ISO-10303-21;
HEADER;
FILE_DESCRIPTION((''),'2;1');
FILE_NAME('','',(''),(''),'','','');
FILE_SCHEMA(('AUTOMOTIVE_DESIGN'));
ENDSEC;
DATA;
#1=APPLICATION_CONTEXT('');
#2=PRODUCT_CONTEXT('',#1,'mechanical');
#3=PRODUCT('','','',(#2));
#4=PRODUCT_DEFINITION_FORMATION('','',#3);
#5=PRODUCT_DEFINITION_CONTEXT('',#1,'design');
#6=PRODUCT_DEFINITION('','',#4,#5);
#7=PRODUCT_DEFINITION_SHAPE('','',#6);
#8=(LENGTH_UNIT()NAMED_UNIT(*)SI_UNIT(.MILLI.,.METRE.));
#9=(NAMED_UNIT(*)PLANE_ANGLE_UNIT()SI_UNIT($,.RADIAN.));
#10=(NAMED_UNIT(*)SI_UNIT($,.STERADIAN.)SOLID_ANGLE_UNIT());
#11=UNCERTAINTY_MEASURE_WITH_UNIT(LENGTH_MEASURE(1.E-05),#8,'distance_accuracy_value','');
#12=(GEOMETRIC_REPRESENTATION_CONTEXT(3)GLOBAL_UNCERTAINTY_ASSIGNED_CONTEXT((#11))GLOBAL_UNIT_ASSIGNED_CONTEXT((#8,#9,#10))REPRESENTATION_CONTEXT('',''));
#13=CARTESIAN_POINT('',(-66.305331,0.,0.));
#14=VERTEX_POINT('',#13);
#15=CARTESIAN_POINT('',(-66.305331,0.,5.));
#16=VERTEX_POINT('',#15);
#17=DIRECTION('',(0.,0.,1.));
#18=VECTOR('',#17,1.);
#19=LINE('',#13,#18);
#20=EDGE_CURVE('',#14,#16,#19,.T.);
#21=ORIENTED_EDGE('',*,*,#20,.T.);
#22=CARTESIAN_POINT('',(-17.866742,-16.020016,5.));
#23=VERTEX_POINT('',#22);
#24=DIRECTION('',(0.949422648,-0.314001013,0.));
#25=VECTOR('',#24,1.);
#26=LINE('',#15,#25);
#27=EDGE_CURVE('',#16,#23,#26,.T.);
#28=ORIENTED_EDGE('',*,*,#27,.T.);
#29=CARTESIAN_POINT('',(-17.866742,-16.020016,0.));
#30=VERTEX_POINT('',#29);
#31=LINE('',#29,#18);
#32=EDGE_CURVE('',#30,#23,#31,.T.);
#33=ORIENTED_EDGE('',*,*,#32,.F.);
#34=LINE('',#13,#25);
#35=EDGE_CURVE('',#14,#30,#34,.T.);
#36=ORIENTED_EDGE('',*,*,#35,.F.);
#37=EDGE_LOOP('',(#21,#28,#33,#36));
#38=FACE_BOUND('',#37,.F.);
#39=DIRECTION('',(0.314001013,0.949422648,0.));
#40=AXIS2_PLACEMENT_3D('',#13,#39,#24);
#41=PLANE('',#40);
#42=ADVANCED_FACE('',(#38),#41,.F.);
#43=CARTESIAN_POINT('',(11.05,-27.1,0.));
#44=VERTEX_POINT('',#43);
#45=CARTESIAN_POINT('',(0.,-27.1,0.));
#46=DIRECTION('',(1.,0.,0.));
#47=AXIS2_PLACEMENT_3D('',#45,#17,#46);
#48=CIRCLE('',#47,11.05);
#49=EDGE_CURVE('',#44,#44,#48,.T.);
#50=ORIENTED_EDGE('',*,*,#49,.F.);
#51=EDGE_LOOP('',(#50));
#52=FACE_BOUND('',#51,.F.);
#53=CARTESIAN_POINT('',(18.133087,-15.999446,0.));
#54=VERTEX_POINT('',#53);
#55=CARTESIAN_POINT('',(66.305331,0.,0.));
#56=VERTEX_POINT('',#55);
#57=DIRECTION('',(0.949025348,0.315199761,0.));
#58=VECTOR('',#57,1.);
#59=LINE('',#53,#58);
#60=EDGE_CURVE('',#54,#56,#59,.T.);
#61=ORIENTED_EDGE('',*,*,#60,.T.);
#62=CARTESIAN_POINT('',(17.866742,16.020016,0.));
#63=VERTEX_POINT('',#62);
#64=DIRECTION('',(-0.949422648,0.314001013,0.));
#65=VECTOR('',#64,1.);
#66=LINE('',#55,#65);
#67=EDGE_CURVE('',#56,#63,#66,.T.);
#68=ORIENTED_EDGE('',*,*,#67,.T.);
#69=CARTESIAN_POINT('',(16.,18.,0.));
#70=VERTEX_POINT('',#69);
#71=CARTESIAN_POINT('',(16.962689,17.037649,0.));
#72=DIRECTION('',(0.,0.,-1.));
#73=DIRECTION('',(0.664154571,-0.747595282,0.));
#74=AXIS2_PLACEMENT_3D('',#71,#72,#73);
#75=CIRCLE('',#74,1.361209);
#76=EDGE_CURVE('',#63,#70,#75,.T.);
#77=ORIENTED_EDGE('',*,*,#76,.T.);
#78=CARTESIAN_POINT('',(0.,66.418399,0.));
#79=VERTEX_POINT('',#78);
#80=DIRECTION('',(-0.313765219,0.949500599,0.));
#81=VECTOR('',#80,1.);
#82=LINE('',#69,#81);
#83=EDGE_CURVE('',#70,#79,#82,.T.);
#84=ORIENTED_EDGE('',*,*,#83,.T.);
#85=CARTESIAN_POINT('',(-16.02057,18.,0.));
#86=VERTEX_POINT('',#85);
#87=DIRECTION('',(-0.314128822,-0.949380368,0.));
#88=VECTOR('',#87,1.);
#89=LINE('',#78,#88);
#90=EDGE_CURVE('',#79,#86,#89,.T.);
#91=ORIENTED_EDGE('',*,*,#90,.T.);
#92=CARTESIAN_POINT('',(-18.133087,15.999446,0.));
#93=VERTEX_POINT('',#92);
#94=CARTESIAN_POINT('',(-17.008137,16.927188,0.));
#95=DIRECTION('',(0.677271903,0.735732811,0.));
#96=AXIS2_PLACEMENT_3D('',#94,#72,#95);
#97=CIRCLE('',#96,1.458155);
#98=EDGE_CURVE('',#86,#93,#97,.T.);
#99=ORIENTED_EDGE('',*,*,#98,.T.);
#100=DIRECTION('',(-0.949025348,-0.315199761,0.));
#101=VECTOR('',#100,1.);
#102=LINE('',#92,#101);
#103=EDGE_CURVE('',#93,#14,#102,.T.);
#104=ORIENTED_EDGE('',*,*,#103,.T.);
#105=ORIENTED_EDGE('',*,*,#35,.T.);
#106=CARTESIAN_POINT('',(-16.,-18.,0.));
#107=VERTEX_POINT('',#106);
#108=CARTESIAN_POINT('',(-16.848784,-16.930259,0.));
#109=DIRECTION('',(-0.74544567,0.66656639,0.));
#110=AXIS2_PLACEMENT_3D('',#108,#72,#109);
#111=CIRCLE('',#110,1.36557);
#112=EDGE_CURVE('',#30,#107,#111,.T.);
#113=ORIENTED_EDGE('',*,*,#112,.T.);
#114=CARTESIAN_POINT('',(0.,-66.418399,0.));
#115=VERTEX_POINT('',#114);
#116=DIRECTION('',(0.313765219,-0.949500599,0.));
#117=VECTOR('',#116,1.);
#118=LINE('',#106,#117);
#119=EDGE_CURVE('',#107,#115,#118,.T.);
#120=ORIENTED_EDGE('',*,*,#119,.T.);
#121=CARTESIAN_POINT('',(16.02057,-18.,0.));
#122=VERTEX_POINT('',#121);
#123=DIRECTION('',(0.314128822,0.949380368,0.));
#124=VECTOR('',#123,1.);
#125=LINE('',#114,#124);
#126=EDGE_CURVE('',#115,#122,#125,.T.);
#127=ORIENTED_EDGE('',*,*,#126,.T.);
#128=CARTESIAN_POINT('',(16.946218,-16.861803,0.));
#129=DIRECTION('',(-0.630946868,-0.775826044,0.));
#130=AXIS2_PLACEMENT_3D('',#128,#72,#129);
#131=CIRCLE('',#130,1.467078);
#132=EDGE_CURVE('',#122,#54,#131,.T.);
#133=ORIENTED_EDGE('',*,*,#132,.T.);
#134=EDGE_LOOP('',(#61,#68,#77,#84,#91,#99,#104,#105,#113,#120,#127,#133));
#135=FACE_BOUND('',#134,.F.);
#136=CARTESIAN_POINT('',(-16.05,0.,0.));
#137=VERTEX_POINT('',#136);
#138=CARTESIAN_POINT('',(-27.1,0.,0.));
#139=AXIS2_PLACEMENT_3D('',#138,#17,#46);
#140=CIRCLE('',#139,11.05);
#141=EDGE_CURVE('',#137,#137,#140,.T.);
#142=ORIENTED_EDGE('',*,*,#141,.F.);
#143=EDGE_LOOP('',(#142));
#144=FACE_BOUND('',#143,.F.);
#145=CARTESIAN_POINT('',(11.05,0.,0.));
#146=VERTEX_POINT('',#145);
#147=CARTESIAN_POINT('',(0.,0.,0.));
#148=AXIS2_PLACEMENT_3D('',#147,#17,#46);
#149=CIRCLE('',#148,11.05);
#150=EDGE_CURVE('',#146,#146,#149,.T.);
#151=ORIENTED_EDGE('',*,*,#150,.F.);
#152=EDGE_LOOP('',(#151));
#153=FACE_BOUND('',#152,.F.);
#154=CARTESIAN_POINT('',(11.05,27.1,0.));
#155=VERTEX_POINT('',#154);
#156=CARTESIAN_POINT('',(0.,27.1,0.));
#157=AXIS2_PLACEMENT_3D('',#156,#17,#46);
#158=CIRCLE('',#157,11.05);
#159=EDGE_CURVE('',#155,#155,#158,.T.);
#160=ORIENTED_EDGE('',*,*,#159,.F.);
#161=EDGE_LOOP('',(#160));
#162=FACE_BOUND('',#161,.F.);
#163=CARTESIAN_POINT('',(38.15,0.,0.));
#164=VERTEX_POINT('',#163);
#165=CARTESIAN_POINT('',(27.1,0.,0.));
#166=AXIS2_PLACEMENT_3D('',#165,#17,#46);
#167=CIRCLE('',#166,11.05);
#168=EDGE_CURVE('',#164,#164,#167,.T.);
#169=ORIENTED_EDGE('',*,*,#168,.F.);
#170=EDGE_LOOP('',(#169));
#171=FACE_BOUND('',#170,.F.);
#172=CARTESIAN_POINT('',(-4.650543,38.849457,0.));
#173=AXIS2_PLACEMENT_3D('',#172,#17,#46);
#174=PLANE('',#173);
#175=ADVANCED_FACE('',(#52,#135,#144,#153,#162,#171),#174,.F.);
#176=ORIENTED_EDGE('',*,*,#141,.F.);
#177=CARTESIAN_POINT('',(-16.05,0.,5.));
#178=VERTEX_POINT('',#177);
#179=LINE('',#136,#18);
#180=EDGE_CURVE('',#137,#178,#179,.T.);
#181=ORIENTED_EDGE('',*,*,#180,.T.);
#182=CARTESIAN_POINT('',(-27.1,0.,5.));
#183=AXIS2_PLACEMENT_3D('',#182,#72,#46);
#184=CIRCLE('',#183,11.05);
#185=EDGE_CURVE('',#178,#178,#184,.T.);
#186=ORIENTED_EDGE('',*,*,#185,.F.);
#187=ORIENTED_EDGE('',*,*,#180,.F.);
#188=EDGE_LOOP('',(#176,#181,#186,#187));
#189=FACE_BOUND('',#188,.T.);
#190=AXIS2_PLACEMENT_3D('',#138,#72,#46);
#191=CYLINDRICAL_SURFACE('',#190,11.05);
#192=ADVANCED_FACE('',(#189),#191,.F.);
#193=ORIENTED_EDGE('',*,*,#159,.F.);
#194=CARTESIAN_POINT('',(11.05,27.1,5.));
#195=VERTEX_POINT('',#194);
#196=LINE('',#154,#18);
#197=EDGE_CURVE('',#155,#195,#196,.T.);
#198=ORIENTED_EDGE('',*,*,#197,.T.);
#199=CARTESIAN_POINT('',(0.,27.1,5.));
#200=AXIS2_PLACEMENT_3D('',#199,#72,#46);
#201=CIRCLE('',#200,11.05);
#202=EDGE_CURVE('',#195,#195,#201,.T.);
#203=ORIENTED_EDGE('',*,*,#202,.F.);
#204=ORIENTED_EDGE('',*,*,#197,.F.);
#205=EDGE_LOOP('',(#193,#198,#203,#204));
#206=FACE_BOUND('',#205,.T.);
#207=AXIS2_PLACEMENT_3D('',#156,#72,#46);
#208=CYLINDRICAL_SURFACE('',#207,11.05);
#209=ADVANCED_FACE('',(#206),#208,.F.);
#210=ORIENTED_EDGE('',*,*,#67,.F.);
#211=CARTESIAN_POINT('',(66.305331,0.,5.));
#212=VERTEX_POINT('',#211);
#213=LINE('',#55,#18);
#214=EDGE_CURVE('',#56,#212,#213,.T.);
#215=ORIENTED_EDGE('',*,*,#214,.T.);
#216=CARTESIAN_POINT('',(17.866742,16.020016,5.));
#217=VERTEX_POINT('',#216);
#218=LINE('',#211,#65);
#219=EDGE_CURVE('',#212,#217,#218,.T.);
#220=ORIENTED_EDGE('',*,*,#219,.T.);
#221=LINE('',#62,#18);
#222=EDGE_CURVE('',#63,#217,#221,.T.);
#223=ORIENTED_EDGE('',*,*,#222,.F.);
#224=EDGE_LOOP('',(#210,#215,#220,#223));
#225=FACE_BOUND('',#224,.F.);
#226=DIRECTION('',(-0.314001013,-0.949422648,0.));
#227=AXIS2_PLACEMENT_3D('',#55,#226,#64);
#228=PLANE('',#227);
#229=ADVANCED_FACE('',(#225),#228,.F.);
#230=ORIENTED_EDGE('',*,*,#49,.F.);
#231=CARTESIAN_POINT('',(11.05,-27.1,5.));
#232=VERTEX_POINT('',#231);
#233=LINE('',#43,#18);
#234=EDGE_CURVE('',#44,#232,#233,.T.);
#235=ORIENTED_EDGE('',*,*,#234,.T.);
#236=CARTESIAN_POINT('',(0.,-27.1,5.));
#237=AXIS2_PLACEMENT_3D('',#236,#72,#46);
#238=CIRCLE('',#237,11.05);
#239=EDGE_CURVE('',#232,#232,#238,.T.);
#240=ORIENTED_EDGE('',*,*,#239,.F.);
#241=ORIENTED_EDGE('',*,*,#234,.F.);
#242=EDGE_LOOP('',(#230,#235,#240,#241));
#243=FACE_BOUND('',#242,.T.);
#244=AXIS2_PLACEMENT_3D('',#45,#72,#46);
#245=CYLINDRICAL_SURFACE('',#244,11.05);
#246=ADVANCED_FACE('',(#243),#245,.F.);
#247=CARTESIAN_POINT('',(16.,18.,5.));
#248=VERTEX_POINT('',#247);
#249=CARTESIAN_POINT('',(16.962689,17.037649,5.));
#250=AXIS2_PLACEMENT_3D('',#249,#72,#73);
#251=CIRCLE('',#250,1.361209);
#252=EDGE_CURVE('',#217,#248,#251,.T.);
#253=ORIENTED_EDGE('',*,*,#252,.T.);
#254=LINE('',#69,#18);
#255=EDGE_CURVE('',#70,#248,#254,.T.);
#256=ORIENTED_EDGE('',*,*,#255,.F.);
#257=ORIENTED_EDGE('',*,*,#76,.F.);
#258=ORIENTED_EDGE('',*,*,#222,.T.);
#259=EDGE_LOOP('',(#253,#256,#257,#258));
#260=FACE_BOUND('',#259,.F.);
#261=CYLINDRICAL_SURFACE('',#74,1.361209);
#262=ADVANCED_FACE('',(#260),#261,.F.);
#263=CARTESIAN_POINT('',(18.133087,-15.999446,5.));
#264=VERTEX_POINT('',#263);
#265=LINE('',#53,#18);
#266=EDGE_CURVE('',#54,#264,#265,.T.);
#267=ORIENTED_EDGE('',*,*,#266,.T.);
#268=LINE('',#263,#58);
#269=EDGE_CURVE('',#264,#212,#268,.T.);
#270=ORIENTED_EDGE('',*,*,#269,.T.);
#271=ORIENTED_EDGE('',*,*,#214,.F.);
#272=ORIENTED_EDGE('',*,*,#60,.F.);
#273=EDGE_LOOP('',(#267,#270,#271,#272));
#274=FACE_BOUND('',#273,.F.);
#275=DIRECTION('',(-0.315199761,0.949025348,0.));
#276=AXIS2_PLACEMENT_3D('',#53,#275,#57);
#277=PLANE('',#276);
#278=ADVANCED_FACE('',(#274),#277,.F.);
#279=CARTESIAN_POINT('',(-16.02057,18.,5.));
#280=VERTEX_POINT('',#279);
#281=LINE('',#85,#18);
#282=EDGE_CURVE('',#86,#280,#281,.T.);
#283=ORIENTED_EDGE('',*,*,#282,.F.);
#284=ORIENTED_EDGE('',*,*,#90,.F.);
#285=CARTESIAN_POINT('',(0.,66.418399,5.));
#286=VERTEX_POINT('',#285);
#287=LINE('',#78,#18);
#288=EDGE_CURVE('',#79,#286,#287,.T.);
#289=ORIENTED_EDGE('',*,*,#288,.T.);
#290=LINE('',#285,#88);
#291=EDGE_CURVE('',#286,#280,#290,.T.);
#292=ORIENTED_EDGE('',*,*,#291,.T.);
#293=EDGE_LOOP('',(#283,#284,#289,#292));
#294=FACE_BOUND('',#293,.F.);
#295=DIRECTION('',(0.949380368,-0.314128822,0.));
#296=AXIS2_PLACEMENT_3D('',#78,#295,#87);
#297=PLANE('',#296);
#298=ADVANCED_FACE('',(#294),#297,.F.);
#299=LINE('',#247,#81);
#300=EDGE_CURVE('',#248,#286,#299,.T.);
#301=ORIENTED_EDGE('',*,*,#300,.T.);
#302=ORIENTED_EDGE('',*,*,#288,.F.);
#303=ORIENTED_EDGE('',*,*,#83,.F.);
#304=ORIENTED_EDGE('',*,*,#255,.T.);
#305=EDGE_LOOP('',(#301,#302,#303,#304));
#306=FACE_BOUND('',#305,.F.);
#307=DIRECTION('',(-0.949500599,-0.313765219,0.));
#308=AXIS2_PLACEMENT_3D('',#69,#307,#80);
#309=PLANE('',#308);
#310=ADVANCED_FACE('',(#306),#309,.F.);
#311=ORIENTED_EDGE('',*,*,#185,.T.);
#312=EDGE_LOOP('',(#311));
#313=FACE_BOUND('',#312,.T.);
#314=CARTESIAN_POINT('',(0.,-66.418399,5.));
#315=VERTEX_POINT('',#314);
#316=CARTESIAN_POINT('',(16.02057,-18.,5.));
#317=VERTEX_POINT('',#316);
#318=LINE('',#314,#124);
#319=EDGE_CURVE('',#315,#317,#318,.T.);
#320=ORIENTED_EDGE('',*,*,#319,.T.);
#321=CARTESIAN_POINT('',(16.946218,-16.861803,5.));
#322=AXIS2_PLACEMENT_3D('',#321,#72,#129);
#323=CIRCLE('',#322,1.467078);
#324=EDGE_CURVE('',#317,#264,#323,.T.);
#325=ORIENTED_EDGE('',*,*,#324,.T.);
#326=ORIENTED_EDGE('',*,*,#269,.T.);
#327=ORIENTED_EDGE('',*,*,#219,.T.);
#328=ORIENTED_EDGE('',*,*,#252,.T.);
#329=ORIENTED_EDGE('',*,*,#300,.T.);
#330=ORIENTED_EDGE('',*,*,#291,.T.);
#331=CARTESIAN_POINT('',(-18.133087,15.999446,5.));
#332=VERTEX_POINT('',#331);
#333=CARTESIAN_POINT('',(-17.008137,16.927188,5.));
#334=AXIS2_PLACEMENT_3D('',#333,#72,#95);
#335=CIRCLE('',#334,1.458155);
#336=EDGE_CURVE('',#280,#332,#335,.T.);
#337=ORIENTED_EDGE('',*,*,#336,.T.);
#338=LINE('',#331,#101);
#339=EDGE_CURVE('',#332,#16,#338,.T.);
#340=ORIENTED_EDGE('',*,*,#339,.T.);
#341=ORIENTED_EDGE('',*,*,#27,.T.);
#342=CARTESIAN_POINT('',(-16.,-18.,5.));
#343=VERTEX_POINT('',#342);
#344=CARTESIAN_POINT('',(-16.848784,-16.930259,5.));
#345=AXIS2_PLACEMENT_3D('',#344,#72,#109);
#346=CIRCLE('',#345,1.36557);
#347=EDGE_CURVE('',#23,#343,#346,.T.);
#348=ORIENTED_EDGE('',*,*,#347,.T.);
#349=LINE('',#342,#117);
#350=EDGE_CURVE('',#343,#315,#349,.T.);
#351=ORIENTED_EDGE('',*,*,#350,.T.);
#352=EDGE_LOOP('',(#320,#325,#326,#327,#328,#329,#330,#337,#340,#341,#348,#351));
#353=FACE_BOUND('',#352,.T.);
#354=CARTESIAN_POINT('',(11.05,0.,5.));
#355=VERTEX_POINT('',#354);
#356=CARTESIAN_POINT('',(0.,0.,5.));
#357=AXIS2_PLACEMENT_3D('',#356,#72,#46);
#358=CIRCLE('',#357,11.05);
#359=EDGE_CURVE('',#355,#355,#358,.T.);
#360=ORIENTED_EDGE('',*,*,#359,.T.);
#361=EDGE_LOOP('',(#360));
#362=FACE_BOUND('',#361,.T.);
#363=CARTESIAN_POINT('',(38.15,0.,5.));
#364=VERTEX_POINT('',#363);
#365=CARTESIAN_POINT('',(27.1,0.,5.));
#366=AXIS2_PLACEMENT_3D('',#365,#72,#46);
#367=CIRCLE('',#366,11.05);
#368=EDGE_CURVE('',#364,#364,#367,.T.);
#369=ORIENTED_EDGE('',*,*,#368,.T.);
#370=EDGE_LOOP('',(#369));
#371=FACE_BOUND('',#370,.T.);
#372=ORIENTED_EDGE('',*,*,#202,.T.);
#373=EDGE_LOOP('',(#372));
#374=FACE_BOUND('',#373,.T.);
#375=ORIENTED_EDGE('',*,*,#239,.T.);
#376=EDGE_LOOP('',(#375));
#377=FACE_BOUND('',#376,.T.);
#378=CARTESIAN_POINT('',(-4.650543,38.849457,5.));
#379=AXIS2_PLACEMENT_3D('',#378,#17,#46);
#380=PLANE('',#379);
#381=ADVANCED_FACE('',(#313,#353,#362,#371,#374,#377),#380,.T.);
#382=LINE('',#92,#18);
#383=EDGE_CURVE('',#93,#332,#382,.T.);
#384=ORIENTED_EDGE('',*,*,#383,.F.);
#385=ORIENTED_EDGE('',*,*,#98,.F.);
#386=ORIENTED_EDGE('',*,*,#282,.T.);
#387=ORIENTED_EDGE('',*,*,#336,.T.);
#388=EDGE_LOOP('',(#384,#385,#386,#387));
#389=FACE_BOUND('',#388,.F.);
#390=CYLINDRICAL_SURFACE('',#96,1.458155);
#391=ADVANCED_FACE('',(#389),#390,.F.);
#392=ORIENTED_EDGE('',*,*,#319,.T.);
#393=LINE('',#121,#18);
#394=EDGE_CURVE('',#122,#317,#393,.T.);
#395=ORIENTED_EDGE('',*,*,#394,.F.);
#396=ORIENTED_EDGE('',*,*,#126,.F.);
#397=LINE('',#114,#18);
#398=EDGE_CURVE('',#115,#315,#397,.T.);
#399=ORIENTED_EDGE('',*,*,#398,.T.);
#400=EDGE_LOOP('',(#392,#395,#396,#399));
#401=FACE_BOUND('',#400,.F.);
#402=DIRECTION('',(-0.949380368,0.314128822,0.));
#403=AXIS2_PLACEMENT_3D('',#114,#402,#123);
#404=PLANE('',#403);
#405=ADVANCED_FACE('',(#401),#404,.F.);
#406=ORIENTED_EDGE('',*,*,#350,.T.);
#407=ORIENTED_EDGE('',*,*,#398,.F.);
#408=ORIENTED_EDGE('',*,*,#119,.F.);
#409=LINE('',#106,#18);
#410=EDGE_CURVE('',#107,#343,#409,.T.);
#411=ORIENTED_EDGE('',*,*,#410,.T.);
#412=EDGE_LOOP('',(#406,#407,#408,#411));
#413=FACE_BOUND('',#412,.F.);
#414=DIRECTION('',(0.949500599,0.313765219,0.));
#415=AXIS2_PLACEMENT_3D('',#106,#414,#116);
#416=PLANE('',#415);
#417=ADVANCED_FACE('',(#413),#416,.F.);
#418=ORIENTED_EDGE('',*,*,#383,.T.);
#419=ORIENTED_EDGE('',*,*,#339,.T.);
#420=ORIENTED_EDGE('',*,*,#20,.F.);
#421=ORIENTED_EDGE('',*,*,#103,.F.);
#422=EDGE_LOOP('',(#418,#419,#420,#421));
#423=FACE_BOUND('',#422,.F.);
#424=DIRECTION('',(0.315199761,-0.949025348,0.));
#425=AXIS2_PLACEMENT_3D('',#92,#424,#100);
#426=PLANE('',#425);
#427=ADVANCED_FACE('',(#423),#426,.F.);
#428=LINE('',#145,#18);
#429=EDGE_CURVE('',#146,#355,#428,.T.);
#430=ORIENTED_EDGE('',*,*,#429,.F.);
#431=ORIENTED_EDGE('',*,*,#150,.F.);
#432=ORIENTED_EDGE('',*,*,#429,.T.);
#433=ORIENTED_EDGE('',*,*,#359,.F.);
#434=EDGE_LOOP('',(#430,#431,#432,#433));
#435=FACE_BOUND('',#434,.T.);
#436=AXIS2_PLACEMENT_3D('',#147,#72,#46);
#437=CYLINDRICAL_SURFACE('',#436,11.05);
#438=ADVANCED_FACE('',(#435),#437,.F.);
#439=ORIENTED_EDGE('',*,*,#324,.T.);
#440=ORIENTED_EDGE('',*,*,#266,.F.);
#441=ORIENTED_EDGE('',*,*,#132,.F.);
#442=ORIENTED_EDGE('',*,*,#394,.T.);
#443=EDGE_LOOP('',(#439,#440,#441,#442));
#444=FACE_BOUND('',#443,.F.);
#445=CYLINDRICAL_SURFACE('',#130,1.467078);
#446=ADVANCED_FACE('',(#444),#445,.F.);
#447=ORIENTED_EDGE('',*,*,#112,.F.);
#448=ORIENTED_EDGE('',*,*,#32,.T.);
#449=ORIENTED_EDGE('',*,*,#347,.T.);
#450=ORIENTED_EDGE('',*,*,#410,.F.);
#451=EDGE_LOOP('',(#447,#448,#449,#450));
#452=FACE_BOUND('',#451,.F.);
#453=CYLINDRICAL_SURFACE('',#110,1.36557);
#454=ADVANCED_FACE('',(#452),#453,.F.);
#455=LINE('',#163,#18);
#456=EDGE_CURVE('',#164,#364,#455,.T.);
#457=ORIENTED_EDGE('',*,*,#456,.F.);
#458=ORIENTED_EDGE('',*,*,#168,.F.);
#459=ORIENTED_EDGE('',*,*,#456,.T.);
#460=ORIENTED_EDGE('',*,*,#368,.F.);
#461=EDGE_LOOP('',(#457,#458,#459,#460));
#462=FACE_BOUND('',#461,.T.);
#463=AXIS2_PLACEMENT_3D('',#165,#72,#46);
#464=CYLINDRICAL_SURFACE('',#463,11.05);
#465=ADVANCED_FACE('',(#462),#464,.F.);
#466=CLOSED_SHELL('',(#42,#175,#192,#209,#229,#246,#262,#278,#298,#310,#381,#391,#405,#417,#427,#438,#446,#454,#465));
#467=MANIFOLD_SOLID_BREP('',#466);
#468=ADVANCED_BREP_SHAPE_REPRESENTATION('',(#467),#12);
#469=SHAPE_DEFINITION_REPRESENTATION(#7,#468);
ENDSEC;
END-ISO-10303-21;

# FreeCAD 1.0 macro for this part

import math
import FreeCAD as App
import Part
import Sketcher

V = App.Vector
Q = App.Units.Quantity

doc = App.newDocument("Part")
body = doc.addObject("PartDesign::Body", "Body")

sketch1 = body.newObject("Sketcher::SketchObject", "Sketch")
sketch1.AttachmentSupport = (doc.getObject("XY_Plane"), [""])
sketch1.MapMode = "FlatFace"
sketch1.addGeometry([
    Part.LineSegment(V(16, 18, 0), V(0, 66.418399, 0)),
    Part.LineSegment(V(0, 66.418399, 0), V(-16.02057, 18, 0)),
    Part.ArcOfCircle(Part.Circle(V(-17.008137, 16.927188, 0), V(0, 0, 1), 1.458155), math.radians(-140.487731), math.radians(47.369174)),
    Part.LineSegment(V(-18.133087, 15.999446, 0), V(-66.305331, 0, 0)),
    Part.LineSegment(V(-66.305331, 0, 0), V(-17.866742, -16.020016, 0)),
    Part.ArcOfCircle(Part.Circle(V(-16.848784, -16.930259, 0), V(0, 0, 1), 1.36557), math.radians(-51.569827), math.radians(138.197393)),
    Part.LineSegment(V(-16, -18, 0), V(0, -66.418399, 0)),
    Part.LineSegment(V(0, -66.418399, 0), V(16.02057, -18, 0)),
    Part.ArcOfCircle(Part.Circle(V(16.946218, -16.861803, 0), V(0, 0, 1), 1.467078), math.radians(36.001458), math.radians(230.879985)),
    Part.LineSegment(V(18.133087, -15.999446, 0), V(66.305331, 0, 0)),
    Part.LineSegment(V(66.305331, 0, 0), V(17.866742, 16.020016, 0)),
    Part.ArcOfCircle(Part.Circle(V(16.962689, 17.037649, 0), V(0, 0, 1), 1.361209), math.radians(135.010067), math.radians(311.617499)),
], False)
sketch1.addConstraint([
    Sketcher.Constraint("Coincident", 0, 2, 1, 1),
    Sketcher.Constraint("Coincident", 1, 2, 2, 2),
    Sketcher.Constraint("Coincident", 2, 1, 3, 1),
    Sketcher.Constraint("Coincident", 3, 2, 4, 1),
    Sketcher.Constraint("Coincident", 4, 2, 5, 2),
    Sketcher.Constraint("Coincident", 5, 1, 6, 1),
    Sketcher.Constraint("Coincident", 6, 2, 7, 1),
    Sketcher.Constraint("Coincident", 7, 2, 8, 2),
    Sketcher.Constraint("Coincident", 8, 1, 9, 1),
    Sketcher.Constraint("Coincident", 9, 2, 10, 1),
    Sketcher.Constraint("Coincident", 10, 2, 11, 2),
    Sketcher.Constraint("Coincident", 11, 1, 0, 1),
    Sketcher.Constraint("Symmetric", 0, 2, 6, 2, -1, 1),
    Sketcher.Constraint("Symmetric", 1, 2, 7, 2, -1, 1),
    Sketcher.Constraint("Symmetric", 2, 1, 8, 1, -1, 1),
    Sketcher.Constraint("Symmetric", 3, 2, 9, 2, -1, 1),
    Sketcher.Constraint("Symmetric", 4, 2, 10, 2, -1, 1),
    Sketcher.Constraint("Symmetric", 5, 1, 11, 1, -1, 1),
    Sketcher.Constraint("PointOnObject", 0, 2, -2),
    Sketcher.Constraint("PointOnObject", 3, 2, -1),
    Sketcher.Constraint("Horizontal", 5, 1, 7, 2),
    Sketcher.Constraint("Distance", 1, Q("51 mm")),
    Sketcher.Constraint("DistanceY", -1, 1, 1, 2, Q("18 mm")),
    Sketcher.Constraint("DistanceX", 5, 1, -1, 1, Q("16 mm")),
    Sketcher.Constraint("Radius", 5, Q("1.36557 mm")),
    Sketcher.Constraint("Radius", 11, Q("1.361209 mm")),
    Sketcher.Constraint("Radius", 2, Q("1.458155 mm")),
    Sketcher.Constraint("Radius", 8, Q("1.467078 mm")),
    Sketcher.Constraint("DistanceY", -1, 1, 0, 2, Q("66.418399 mm")),
    Sketcher.Constraint("DistanceY", 8, 3, 0, 2, Q("83.280202 mm")),
    Sketcher.Constraint("DistanceY", 5, 3, -1, 1, Q("16.930259 mm")),
    Sketcher.Constraint("DistanceX", -1, 1, 11, 3, Q("16.962689 mm")),
    Sketcher.Constraint("DistanceX", 3, 2, -1, 1, Q("66.305331 mm")),
    Sketcher.Constraint("DistanceY", 8, 3, 2, 3, Q("33.78899 mm")),
])
pad1 = body.newObject("PartDesign::Pad", "Pad")
pad1.Profile = sketch1
pad1.Length = 5

sketch2 = body.newObject("Sketcher::SketchObject", "Sketch001")
sketch2.AttachmentSupport = (doc.getObject("XY_Plane"), [""])
sketch2.MapMode = "FlatFace"
sketch2.addGeometry([
    Part.Circle(V(0, 27.1, 0), V(0, 0, 1), 11.05),
    Part.Circle(V(0, 0, 0), V(0, 0, 1), 11.05),
    Part.Circle(V(-27.1, 0, 0), V(0, 0, 1), 11.05),
    Part.Circle(V(27.1, 0, 0), V(0, 0, 1), 11.05),
    Part.Circle(V(0, -27.1, 0), V(0, 0, 1), 11.05),
], False)
sketch2.addConstraint([
    Sketcher.Constraint("Coincident", 1, 3, -1, 1),
    Sketcher.Constraint("Equal", 0, 1),
    Sketcher.Constraint("Equal", 1, 2),
    Sketcher.Constraint("Equal", 2, 3),
    Sketcher.Constraint("Equal", 3, 4),
    Sketcher.Constraint("Symmetric", 2, 3, 3, 3, -1, 1),
    Sketcher.Constraint("Symmetric", 0, 3, 4, 3, -1, 1),
    Sketcher.Constraint("PointOnObject", 0, 3, -2),
    Sketcher.Constraint("PointOnObject", 2, 3, -1),
    Sketcher.Constraint("Diameter", 0, Q("22.1 mm")),
    Sketcher.Constraint("DistanceY", -1, 1, 0, 3, Q("27.1 mm")),
    Sketcher.Constraint("DistanceX", 2, 3, -1, 1, Q("27.1 mm")),
])
pocket1 = body.newObject("PartDesign::Pocket", "Pocket")
pocket1.Profile = sketch2
pocket1.Length = 21.4
pocket1.Reversed = True

doc.recompute()
